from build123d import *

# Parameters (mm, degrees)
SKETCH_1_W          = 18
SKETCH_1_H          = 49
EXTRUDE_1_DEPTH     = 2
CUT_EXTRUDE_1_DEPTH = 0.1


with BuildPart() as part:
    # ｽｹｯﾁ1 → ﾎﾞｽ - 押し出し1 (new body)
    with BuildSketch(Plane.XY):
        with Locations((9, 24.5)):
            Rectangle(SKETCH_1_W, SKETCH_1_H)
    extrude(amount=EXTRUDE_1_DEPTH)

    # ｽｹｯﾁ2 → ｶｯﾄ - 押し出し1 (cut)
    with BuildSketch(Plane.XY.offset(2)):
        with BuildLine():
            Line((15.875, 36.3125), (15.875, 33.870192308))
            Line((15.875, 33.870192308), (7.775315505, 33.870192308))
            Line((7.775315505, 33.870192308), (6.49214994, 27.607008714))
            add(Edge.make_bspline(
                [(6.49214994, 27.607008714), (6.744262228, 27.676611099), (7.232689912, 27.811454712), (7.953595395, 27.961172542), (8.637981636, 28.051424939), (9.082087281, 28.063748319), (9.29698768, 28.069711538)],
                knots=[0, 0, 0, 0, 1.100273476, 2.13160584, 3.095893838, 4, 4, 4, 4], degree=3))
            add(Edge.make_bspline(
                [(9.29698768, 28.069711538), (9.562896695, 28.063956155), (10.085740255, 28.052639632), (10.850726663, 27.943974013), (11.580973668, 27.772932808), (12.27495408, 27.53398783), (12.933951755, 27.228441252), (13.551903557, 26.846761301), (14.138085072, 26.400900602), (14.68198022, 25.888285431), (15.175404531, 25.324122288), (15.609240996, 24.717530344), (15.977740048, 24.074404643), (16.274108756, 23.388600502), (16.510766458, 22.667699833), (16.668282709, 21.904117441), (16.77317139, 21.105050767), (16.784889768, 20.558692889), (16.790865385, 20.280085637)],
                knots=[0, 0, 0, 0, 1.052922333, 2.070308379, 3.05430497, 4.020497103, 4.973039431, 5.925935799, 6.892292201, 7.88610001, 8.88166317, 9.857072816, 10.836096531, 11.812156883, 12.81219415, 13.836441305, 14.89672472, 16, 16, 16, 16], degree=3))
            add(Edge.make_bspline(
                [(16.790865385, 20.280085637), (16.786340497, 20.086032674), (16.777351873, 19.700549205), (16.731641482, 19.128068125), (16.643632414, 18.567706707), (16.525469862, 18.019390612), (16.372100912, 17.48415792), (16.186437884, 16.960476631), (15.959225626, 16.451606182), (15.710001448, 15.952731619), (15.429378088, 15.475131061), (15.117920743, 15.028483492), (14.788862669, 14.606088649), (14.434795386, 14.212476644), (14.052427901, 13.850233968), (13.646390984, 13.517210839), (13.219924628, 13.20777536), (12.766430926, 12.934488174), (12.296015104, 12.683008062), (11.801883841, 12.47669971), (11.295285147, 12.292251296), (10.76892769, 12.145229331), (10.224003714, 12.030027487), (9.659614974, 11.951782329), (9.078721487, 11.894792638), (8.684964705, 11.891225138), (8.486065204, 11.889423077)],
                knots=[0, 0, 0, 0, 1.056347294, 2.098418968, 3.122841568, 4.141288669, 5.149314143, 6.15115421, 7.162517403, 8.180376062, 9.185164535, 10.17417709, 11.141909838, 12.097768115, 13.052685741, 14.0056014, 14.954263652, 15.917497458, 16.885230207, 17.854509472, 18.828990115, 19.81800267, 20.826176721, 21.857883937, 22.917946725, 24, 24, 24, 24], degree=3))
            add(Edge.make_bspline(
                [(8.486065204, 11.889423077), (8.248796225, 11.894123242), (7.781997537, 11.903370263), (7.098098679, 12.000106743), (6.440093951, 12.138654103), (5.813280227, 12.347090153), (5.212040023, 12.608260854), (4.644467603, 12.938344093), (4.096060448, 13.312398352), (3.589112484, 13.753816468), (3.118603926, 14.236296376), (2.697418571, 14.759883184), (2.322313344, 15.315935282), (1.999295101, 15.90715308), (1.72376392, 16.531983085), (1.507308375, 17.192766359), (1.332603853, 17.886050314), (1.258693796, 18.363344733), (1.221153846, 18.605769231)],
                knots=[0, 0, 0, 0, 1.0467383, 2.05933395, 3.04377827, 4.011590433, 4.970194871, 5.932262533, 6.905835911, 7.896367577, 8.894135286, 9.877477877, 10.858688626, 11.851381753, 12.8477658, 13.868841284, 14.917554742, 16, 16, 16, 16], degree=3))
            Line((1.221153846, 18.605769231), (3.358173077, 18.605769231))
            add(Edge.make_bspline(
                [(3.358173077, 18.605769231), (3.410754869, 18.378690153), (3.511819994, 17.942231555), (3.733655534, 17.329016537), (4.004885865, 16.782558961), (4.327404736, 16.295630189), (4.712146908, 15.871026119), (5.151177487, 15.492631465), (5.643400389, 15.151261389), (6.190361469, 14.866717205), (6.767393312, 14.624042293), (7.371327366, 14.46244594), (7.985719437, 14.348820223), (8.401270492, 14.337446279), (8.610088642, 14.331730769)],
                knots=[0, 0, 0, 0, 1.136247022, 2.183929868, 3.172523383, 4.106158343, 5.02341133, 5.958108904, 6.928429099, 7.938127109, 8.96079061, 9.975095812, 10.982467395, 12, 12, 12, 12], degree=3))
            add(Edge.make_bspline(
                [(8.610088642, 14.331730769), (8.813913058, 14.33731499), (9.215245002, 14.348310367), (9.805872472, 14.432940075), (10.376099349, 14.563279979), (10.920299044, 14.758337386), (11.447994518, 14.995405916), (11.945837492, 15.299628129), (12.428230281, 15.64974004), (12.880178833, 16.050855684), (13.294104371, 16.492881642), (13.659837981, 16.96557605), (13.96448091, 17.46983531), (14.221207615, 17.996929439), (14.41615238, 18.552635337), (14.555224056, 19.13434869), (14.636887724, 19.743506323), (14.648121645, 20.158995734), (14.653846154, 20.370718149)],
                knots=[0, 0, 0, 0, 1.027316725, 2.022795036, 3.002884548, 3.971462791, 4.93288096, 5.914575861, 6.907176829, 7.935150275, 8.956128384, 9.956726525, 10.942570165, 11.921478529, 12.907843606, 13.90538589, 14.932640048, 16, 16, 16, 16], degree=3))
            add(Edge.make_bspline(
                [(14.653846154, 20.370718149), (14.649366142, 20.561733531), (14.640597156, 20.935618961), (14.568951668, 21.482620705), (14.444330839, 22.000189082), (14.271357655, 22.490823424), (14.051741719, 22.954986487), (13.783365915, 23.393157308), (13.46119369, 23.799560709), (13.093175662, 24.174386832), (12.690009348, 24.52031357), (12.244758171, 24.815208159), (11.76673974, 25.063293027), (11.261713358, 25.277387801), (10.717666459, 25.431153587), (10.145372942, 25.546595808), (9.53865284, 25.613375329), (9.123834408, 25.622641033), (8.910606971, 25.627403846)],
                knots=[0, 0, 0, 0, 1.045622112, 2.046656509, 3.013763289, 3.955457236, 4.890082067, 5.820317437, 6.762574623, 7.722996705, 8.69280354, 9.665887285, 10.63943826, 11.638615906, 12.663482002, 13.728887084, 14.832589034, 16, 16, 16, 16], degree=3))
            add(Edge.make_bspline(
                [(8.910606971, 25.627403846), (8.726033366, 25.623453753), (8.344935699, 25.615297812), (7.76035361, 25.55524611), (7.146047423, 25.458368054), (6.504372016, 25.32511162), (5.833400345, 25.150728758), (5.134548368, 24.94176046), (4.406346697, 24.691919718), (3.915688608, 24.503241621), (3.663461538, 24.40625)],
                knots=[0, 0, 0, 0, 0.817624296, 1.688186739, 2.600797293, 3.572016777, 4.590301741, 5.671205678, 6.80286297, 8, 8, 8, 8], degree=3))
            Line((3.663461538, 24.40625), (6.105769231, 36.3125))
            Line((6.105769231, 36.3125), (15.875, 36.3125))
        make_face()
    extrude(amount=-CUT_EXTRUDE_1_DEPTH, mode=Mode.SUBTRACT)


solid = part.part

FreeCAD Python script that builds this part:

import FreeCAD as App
import Part
import Sketcher
Q = App.Units.Quantity

doc = App.newDocument("Part")
body = doc.addObject("PartDesign::Body", "Body")

# Sketch on XY plane
sketch1 = body.newObject("Sketcher::SketchObject", "Sketch")
sketch1.AttachmentSupport = (doc.getObject("XY_Plane"), [""])
sketch1.MapMode = "FlatFace"
sketch1.addGeometry(Part.LineSegment(App.Vector(0, 49, 0), App.Vector(0, 0, 0)), False)
sketch1.addGeometry(Part.LineSegment(App.Vector(0, 0, 0), App.Vector(18, 0, 0)), False)
sketch1.addGeometry(Part.LineSegment(App.Vector(18, 0, 0), App.Vector(18, 49, 0)), False)
sketch1.addGeometry(Part.LineSegment(App.Vector(18, 49, 0), App.Vector(0, 49, 0)), False)
sketch1.addConstraint(Sketcher.Constraint("Coincident", 0, 2, 1, 1))
sketch1.addConstraint(Sketcher.Constraint("Coincident", 1, 2, 2, 1))
sketch1.addConstraint(Sketcher.Constraint("Coincident", 2, 2, 3, 1))
sketch1.addConstraint(Sketcher.Constraint("Coincident", 3, 2, 0, 1))
sketch1.addConstraint(Sketcher.Constraint("Vertical", 0))
sketch1.addConstraint(Sketcher.Constraint("Horizontal", 1))
sketch1.addConstraint(Sketcher.Constraint("Vertical", 2))
sketch1.addConstraint(Sketcher.Constraint("Horizontal", 3))
sketch1.addConstraint(Sketcher.Constraint("Coincident", 0, 2, -1, 1))
sketch1.addConstraint(Sketcher.Constraint("DistanceX", 1, 1, 1, 2, Q("18 mm")))
sketch1.addConstraint(Sketcher.Constraint("DistanceY", 0, 2, 0, 1, Q("49 mm")))
pad1 = body.newObject("PartDesign::Pad", "Pad")
pad1.Profile = sketch1
pad1.Length = 2

# Sketch on XY plane
sketch2 = body.newObject("Sketcher::SketchObject", "Sketch001")
sketch2.AttachmentSupport = (doc.getObject("XY_Plane"), [""])
sketch2.MapMode = "FlatFace"
sketch2.AttachmentOffset = App.Placement(App.Vector(0, 0, 2), App.Rotation())
sketch2.addGeometry(Part.LineSegment(App.Vector(15.875, 33.870192, 0), App.Vector(15.875, 36.3125, 0)), False)
sketch2.addGeometry(Part.LineSegment(App.Vector(15.875, 36.3125, 0), App.Vector(6.105769, 36.3125, 0)), False)
sketch2.addGeometry(Part.LineSegment(App.Vector(6.105769, 36.3125, 0), App.Vector(3.663462, 24.40625, 0)), False)
sketch2.addGeometry(Part.BSplineCurve([App.Vector(8.910607, 25.627404, 0), App.Vector(8.726033, 25.623454, 0), App.Vector(8.344936, 25.615298, 0), App.Vector(7.760354, 25.555246, 0), App.Vector(7.146047, 25.458368, 0), App.Vector(6.504372, 25.325112, 0), App.Vector(5.8334, 25.150729, 0), App.Vector(5.134548, 24.94176, 0), App.Vector(4.406347, 24.69192, 0), App.Vector(3.915689, 24.503242, 0), App.Vector(3.663462, 24.40625, 0)], [4, 1, 1, 1, 1, 1, 1, 1, 4], [0, 0.817624296, 1.688186739, 2.600797293, 3.572016777, 4.590301741, 5.671205678, 6.80286297, 8], False, 3, [1, 1, 1, 1, 1, 1, 1, 1, 1, 1, 1], False), False)
sketch2.addGeometry(Part.BSplineCurve([App.Vector(14.653846, 20.370718, 0), App.Vector(14.649366, 20.561734, 0), App.Vector(14.640597, 20.935619, 0), App.Vector(14.568952, 21.482621, 0), App.Vector(14.444331, 22.000189, 0), App.Vector(14.271358, 22.490823, 0), App.Vector(14.051742, 22.954986, 0), App.Vector(13.783366, 23.393157, 0), App.Vector(13.461194, 23.799561, 0), App.Vector(13.093176, 24.174387, 0), App.Vector(12.690009, 24.520314, 0), App.Vector(12.244758, 24.815208, 0), App.Vector(11.76674, 25.063293, 0), App.Vector(11.261713, 25.277388, 0), App.Vector(10.717666, 25.431154, 0), App.Vector(10.145373, 25.546596, 0), App.Vector(9.538653, 25.613375, 0), App.Vector(9.123834, 25.622641, 0), App.Vector(8.910607, 25.627404, 0)], [4, 1, 1, 1, 1, 1, 1, 1, 1, 1, 1, 1, 1, 1, 1, 1, 4], [0, 1.045622112, 2.046656509, 3.013763289, 3.955457236, 4.890082067, 5.820317437, 6.762574623, 7.722996705, 8.69280354, 9.665887285, 10.63943826, 11.638615906, 12.663482002, 13.728887084, 14.832589034, 16], False, 3, [1, 1, 1, 1, 1, 1, 1, 1, 1, 1, 1, 1, 1, 1, 1, 1, 1, 1, 1], False), False)
sketch2.addGeometry(Part.BSplineCurve([App.Vector(8.610089, 14.331731, 0), App.Vector(8.813913, 14.337315, 0), App.Vector(9.215245, 14.34831, 0), App.Vector(9.805872, 14.43294, 0), App.Vector(10.376099, 14.56328, 0), App.Vector(10.920299, 14.758337, 0), App.Vector(11.447995, 14.995406, 0), App.Vector(11.945837, 15.299628, 0), App.Vector(12.42823, 15.64974, 0), App.Vector(12.880179, 16.050856, 0), App.Vector(13.294104, 16.492882, 0), App.Vector(13.659838, 16.965576, 0), App.Vector(13.964481, 17.469835, 0), App.Vector(14.221208, 17.996929, 0), App.Vector(14.416152, 18.552635, 0), App.Vector(14.555224, 19.134349, 0), App.Vector(14.636888, 19.743506, 0), App.Vector(14.648122, 20.158996, 0), App.Vector(14.653846, 20.370718, 0)], [4, 1, 1, 1, 1, 1, 1, 1, 1, 1, 1, 1, 1, 1, 1, 1, 4], [0, 1.027316725, 2.022795036, 3.002884548, 3.971462791, 4.93288096, 5.914575861, 6.907176829, 7.935150275, 8.956128384, 9.956726525, 10.942570165, 11.921478529, 12.907843606, 13.90538589, 14.932640048, 16], False, 3, [1, 1, 1, 1, 1, 1, 1, 1, 1, 1, 1, 1, 1, 1, 1, 1, 1, 1, 1], False), False)
sketch2.addGeometry(Part.BSplineCurve([App.Vector(3.358173, 18.605769, 0), App.Vector(3.410755, 18.37869, 0), App.Vector(3.51182, 17.942232, 0), App.Vector(3.733656, 17.329017, 0), App.Vector(4.004886, 16.782559, 0), App.Vector(4.327405, 16.29563, 0), App.Vector(4.712147, 15.871026, 0), App.Vector(5.151177, 15.492631, 0), App.Vector(5.6434, 15.151261, 0), App.Vector(6.190361, 14.866717, 0), App.Vector(6.767393, 14.624042, 0), App.Vector(7.371327, 14.462446, 0), App.Vector(7.985719, 14.34882, 0), App.Vector(8.40127, 14.337446, 0), App.Vector(8.610089, 14.331731, 0)], [4, 1, 1, 1, 1, 1, 1, 1, 1, 1, 1, 1, 4], [0, 1.136247022, 2.183929868, 3.172523383, 4.106158343, 5.02341133, 5.958108904, 6.928429099, 7.938127109, 8.96079061, 9.975095812, 10.982467395, 12], False, 3, [1, 1, 1, 1, 1, 1, 1, 1, 1, 1, 1, 1, 1, 1, 1], False), False)
sketch2.addGeometry(Part.LineSegment(App.Vector(3.358173, 18.605769, 0), App.Vector(1.221154, 18.605769, 0)), False)
sketch2.addGeometry(Part.BSplineCurve([App.Vector(8.486065, 11.889423, 0), App.Vector(8.248796, 11.894123, 0), App.Vector(7.781998, 11.90337, 0), App.Vector(7.098099, 12.000107, 0), App.Vector(6.440094, 12.138654, 0), App.Vector(5.81328, 12.34709, 0), App.Vector(5.21204, 12.608261, 0), App.Vector(4.644468, 12.938344, 0), App.Vector(4.09606, 13.312398, 0), App.Vector(3.589112, 13.753816, 0), App.Vector(3.118604, 14.236296, 0), App.Vector(2.697419, 14.759883, 0), App.Vector(2.322313, 15.315935, 0), App.Vector(1.999295, 15.907153, 0), App.Vector(1.723764, 16.531983, 0), App.Vector(1.507308, 17.192766, 0), App.Vector(1.332604, 17.88605, 0), App.Vector(1.258694, 18.363345, 0), App.Vector(1.221154, 18.605769, 0)], [4, 1, 1, 1, 1, 1, 1, 1, 1, 1, 1, 1, 1, 1, 1, 1, 4], [0, 1.0467383, 2.05933395, 3.04377827, 4.011590433, 4.970194871, 5.932262533, 6.905835911, 7.896367577, 8.894135286, 9.877477877, 10.858688626, 11.851381753, 12.8477658, 13.868841284, 14.917554742, 16], False, 3, [1, 1, 1, 1, 1, 1, 1, 1, 1, 1, 1, 1, 1, 1, 1, 1, 1, 1, 1], False), False)
sketch2.addGeometry(Part.BSplineCurve([App.Vector(16.790865, 20.280086, 0), App.Vector(16.78634, 20.086033, 0), App.Vector(16.777352, 19.700549, 0), App.Vector(16.731641, 19.128068, 0), App.Vector(16.643632, 18.567707, 0), App.Vector(16.52547, 18.019391, 0), App.Vector(16.372101, 17.484158, 0), App.Vector(16.186438, 16.960477, 0), App.Vector(15.959226, 16.451606, 0), App.Vector(15.710001, 15.952732, 0), App.Vector(15.429378, 15.475131, 0), App.Vector(15.117921, 15.028483, 0), App.Vector(14.788863, 14.606089, 0), App.Vector(14.434795, 14.212477, 0), App.Vector(14.052428, 13.850234, 0), App.Vector(13.646391, 13.517211, 0), App.Vector(13.219925, 13.207775, 0), App.Vector(12.766431, 12.934488, 0), App.Vector(12.296015, 12.683008, 0), App.Vector(11.801884, 12.4767, 0), App.Vector(11.295285, 12.292251, 0), App.Vector(10.768928, 12.145229, 0), App.Vector(10.224004, 12.030027, 0), App.Vector(9.659615, 11.951782, 0), App.Vector(9.078721, 11.894793, 0), App.Vector(8.684965, 11.891225, 0), App.Vector(8.486065, 11.889423, 0)], [4, 1, 1, 1, 1, 1, 1, 1, 1, 1, 1, 1, 1, 1, 1, 1, 1, 1, 1, 1, 1, 1, 1, 1, 4], [0, 1.056347294, 2.098418968, 3.122841568, 4.141288669, 5.149314143, 6.15115421, 7.162517403, 8.180376062, 9.185164535, 10.17417709, 11.141909838, 12.097768115, 13.052685741, 14.0056014, 14.954263652, 15.917497458, 16.885230207, 17.854509472, 18.828990115, 19.81800267, 20.826176721, 21.857883937, 22.917946725, 24], False, 3, [1, 1, 1, 1, 1, 1, 1, 1, 1, 1, 1, 1, 1, 1, 1, 1, 1, 1, 1, 1, 1, 1, 1, 1, 1, 1, 1], False), False)
sketch2.addGeometry(Part.BSplineCurve([App.Vector(9.296988, 28.069712, 0), App.Vector(9.562897, 28.063956, 0), App.Vector(10.08574, 28.05264, 0), App.Vector(10.850727, 27.943974, 0), App.Vector(11.580974, 27.772933, 0), App.Vector(12.274954, 27.533988, 0), App.Vector(12.933952, 27.228441, 0), App.Vector(13.551904, 26.846761, 0), App.Vector(14.138085, 26.400901, 0), App.Vector(14.68198, 25.888285, 0), App.Vector(15.175405, 25.324122, 0), App.Vector(15.609241, 24.71753, 0), App.Vector(15.97774, 24.074405, 0), App.Vector(16.274109, 23.388601, 0), App.Vector(16.510766, 22.6677, 0), App.Vector(16.668283, 21.904117, 0), App.Vector(16.773171, 21.105051, 0), App.Vector(16.78489, 20.558693, 0), App.Vector(16.790865, 20.280086, 0)], [4, 1, 1, 1, 1, 1, 1, 1, 1, 1, 1, 1, 1, 1, 1, 1, 4], [0, 1.052922333, 2.070308379, 3.05430497, 4.020497103, 4.973039431, 5.925935799, 6.892292201, 7.88610001, 8.88166317, 9.857072816, 10.836096531, 11.812156883, 12.81219415, 13.836441305, 14.89672472, 16], False, 3, [1, 1, 1, 1, 1, 1, 1, 1, 1, 1, 1, 1, 1, 1, 1, 1, 1, 1, 1], False), False)
sketch2.addGeometry(Part.BSplineCurve([App.Vector(6.49215, 27.607009, 0), App.Vector(6.744262, 27.676611, 0), App.Vector(7.23269, 27.811455, 0), App.Vector(7.953595, 27.961173, 0), App.Vector(8.637982, 28.051425, 0), App.Vector(9.082087, 28.063748, 0), App.Vector(9.296988, 28.069712, 0)], [4, 1, 1, 1, 4], [0, 1.100273476, 2.13160584, 3.095893838, 4], False, 3, [1, 1, 1, 1, 1, 1, 1], False), False)
sketch2.addGeometry(Part.LineSegment(App.Vector(6.49215, 27.607009, 0), App.Vector(7.775316, 33.870192, 0)), False)
sketch2.addGeometry(Part.LineSegment(App.Vector(7.775316, 33.870192, 0), App.Vector(15.875, 33.870192, 0)), False)
sketch2.addConstraint(Sketcher.Constraint("Block", 3))
sketch2.addConstraint(Sketcher.Constraint("Block", 4))
sketch2.addConstraint(Sketcher.Constraint("Block", 5))
sketch2.addConstraint(Sketcher.Constraint("Block", 6))
sketch2.addConstraint(Sketcher.Constraint("Block", 8))
sketch2.addConstraint(Sketcher.Constraint("Block", 9))
sketch2.addConstraint(Sketcher.Constraint("Block", 10))
sketch2.addConstraint(Sketcher.Constraint("Block", 11))
sketch2.addConstraint(Sketcher.Constraint("Coincident", 0, 2, 1, 1))
sketch2.addConstraint(Sketcher.Constraint("Coincident", 1, 2, 2, 1))
sketch2.addConstraint(Sketcher.Constraint("Coincident", 2, 2, 3, 2))
sketch2.addConstraint(Sketcher.Constraint("Coincident", 6, 1, 7, 1))
sketch2.addConstraint(Sketcher.Constraint("Coincident", 7, 2, 8, 2))
sketch2.addConstraint(Sketcher.Constraint("Coincident", 11, 1, 12, 1))
sketch2.addConstraint(Sketcher.Constraint("Coincident", 12, 2, 13, 1))
sketch2.addConstraint(Sketcher.Constraint("Coincident", 13, 2, 0, 1))
sketch2.addConstraint(Sketcher.Constraint("Vertical", 0))
sketch2.addConstraint(Sketcher.Constraint("Horizontal", 1))
sketch2.addConstraint(Sketcher.Constraint("Horizontal", 13))
sketch2.addConstraint(Sketcher.Constraint("DistanceX", -1, 1, 0, 2, Q("15.875 mm")))
sketch2.addConstraint(Sketcher.Constraint("DistanceX", 1, 2, 1, 1, Q("9.769231 mm")))
sketch2.addConstraint(Sketcher.Constraint("DistanceY", -1, 1, 0, 2, Q("36.3125 mm")))
sketch2.addConstraint(Sketcher.Constraint("DistanceX", 13, 1, 13, 2, Q("8.099684 mm")))
sketch2.addConstraint(Sketcher.Constraint("DistanceY", 0, 1, 0, 2, Q("2.442308 mm")))
pocket1 = body.newObject("PartDesign::Pocket", "Pocket")
pocket1.Profile = sketch2
pocket1.Length = 0.1

doc.recompute()
